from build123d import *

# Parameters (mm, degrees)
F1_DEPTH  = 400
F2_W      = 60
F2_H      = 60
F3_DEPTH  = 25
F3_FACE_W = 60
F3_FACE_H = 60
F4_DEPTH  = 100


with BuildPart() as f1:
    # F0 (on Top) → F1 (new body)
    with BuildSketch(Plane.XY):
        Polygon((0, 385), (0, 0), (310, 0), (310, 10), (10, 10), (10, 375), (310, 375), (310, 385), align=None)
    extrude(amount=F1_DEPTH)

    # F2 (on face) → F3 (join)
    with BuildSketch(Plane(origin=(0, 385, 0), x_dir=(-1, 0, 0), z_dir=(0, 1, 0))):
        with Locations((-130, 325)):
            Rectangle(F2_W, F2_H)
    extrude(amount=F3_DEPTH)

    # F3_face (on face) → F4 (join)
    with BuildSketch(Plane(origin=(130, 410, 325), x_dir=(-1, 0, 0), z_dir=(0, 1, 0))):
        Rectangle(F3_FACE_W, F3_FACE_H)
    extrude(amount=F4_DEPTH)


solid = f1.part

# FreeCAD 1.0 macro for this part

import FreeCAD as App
import Part
import Sketcher
Q = App.Units.Quantity


def add_polygon(sketch, points):
    """Adds a closed chain of lines whose ends are joined by coincident constraints."""
    first, n = sketch.GeometryCount, len(points)
    for a, b in zip(points, points[1:] + points[:1]):
        sketch.addGeometry(Part.LineSegment(App.Vector(*a, 0), App.Vector(*b, 0)), False)
    for i in range(n):
        sketch.addConstraint(Sketcher.Constraint("Coincident", first + i, 2, first + (i + 1) % n, 1))

doc = App.newDocument("Part")
body = doc.addObject("PartDesign::Body", "Body")

sketch1 = body.newObject("Sketcher::SketchObject", "Sketch")
sketch1.AttachmentSupport = (doc.getObject("XY_Plane"), [""])
sketch1.MapMode = "FlatFace"
add_polygon(sketch1, [(0, 385), (0, 0), (310, 0), (310, 10), (10, 10), (10, 375), (310, 375), (310, 385)])
sketch1.addConstraint([
    Sketcher.Constraint("Vertical", 0),
    Sketcher.Constraint("Horizontal", 1),
    Sketcher.Constraint("Vertical", 2),
    Sketcher.Constraint("Horizontal", 3),
    Sketcher.Constraint("Vertical", 4),
    Sketcher.Constraint("Horizontal", 5),
    Sketcher.Constraint("Vertical", 6),
    Sketcher.Constraint("Horizontal", 7),
    Sketcher.Constraint("Coincident", 0, 2, -1, 1),
    Sketcher.Constraint("Vertical", 2, 2, 5, 2),
    Sketcher.Constraint("Equal", 2, 6),
    Sketcher.Constraint("DistanceX", 1, 1, 1, 2, Q("310 mm")),
    Sketcher.Constraint("DistanceX", 3, 2, 3, 1, Q("300 mm")),
    Sketcher.Constraint("DistanceY", 0, 2, 0, 1, Q("385 mm")),
    Sketcher.Constraint("DistanceY", 2, 1, 2, 2, Q("10 mm")),
])
pad1 = body.newObject("PartDesign::Pad", "Pad")
pad1.Profile = sketch1
pad1.Length = 400

sketch2 = body.newObject("Sketcher::SketchObject", "Sketch001")
sketch2.AttachmentSupport = (doc.getObject("XZ_Plane"), [""])
sketch2.MapMode = "FlatFace"
sketch2.AttachmentOffset = App.Placement(App.Vector(0, 0, -385), App.Rotation())
add_polygon(sketch2, [(160, 355), (160, 295), (100, 295), (100, 355)])
sketch2.addConstraint([
    Sketcher.Constraint("Vertical", 0),
    Sketcher.Constraint("Horizontal", 1),
    Sketcher.Constraint("Vertical", 2),
    Sketcher.Constraint("Horizontal", 3),
    Sketcher.Constraint("Equal", 3, 0),
    Sketcher.Constraint("DistanceX", 1, 2, 1, 1, Q("60 mm")),
    Sketcher.Constraint("DistanceX", -1, 1, 0, 2, Q("160 mm")),
    Sketcher.Constraint("DistanceY", -1, 1, 0, 2, Q("295 mm")),
])
pad2 = body.newObject("PartDesign::Pad", "Pad001")
pad2.Profile = sketch2
pad2.Length = 25
pad2.Reversed = True

sketch3 = body.newObject("Sketcher::SketchObject", "Sketch002")
sketch3.AttachmentSupport = (doc.getObject("XZ_Plane"), [""])
sketch3.MapMode = "FlatFace"
sketch3.AttachmentOffset = App.Placement(App.Vector(0, 0, -410), App.Rotation())
add_polygon(sketch3, [(160, 355), (160, 295), (100, 295), (100, 355)])
sketch3.addConstraint([
    Sketcher.Constraint("Vertical", 0),
    Sketcher.Constraint("Horizontal", 1),
    Sketcher.Constraint("Vertical", 2),
    Sketcher.Constraint("Horizontal", 3),
    Sketcher.Constraint("Equal", 3, 0),
    Sketcher.Constraint("DistanceX", 1, 2, 1, 1, Q("60 mm")),
    Sketcher.Constraint("DistanceX", -1, 1, 0, 2, Q("160 mm")),
    Sketcher.Constraint("DistanceY", -1, 1, 0, 2, Q("295 mm")),
])
pad3 = body.newObject("PartDesign::Pad", "Pad002")
pad3.Profile = sketch3
pad3.Length = 100
pad3.Reversed = True

doc.recompute()
